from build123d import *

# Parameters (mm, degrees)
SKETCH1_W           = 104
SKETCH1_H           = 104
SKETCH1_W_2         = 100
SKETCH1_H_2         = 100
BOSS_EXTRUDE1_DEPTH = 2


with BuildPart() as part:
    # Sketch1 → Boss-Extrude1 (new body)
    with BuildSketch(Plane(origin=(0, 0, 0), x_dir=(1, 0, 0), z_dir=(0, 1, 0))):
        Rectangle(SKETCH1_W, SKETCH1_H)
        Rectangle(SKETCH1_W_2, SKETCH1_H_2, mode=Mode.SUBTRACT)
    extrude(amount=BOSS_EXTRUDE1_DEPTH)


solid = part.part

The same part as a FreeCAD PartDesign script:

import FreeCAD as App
import Part
import Sketcher
from FreeCAD import Vector
Q = App.Units.Quantity

doc = App.newDocument("Part")
body = doc.addObject("PartDesign::Body", "Body")

sketch1 = body.newObject("Sketcher::SketchObject", "Sketch")
sketch1.AttachmentSupport = (doc.getObject("XZ_Plane"), [""])
sketch1.MapMode = "FlatFace"
sketch1.addGeometry(Part.LineSegment(Vector(-52, -52, 0), Vector(-52, 52, 0)), False)
sketch1.addGeometry(Part.LineSegment(Vector(-52, 52, 0), Vector(52, 52, 0)), False)
sketch1.addGeometry(Part.LineSegment(Vector(52, 52, 0), Vector(52, -52, 0)), False)
sketch1.addGeometry(Part.LineSegment(Vector(52, -52, 0), Vector(-52, -52, 0)), False)
sketch1.addGeometry(Part.LineSegment(Vector(50, 50, 0), Vector(-50, 50, 0)), False)
sketch1.addGeometry(Part.LineSegment(Vector(-50, 50, 0), Vector(-50, -50, 0)), False)
sketch1.addGeometry(Part.LineSegment(Vector(-50, -50, 0), Vector(50, -50, 0)), False)
sketch1.addGeometry(Part.LineSegment(Vector(50, -50, 0), Vector(50, 50, 0)), False)
sketch1.addConstraint(Sketcher.Constraint("Coincident", 0, 2, 1, 1))
sketch1.addConstraint(Sketcher.Constraint("Coincident", 1, 2, 2, 1))
sketch1.addConstraint(Sketcher.Constraint("Coincident", 2, 2, 3, 1))
sketch1.addConstraint(Sketcher.Constraint("Coincident", 3, 2, 0, 1))
sketch1.addConstraint(Sketcher.Constraint("Coincident", 4, 2, 5, 1))
sketch1.addConstraint(Sketcher.Constraint("Coincident", 5, 2, 6, 1))
sketch1.addConstraint(Sketcher.Constraint("Coincident", 6, 2, 7, 1))
sketch1.addConstraint(Sketcher.Constraint("Coincident", 7, 2, 4, 1))
sketch1.addConstraint(Sketcher.Constraint("Vertical", 0))
sketch1.addConstraint(Sketcher.Constraint("Horizontal", 1))
sketch1.addConstraint(Sketcher.Constraint("Vertical", 2))
sketch1.addConstraint(Sketcher.Constraint("Horizontal", 3))
sketch1.addConstraint(Sketcher.Constraint("Horizontal", 4))
sketch1.addConstraint(Sketcher.Constraint("Vertical", 5))
sketch1.addConstraint(Sketcher.Constraint("Horizontal", 6))
sketch1.addConstraint(Sketcher.Constraint("Vertical", 7))
sketch1.addConstraint(Sketcher.Constraint("Symmetric", 0, 2, 2, 2, -1, 1))
sketch1.addConstraint(Sketcher.Constraint("Symmetric", 4, 2, 6, 2, -1, 1))
sketch1.addConstraint(Sketcher.Constraint("Equal", 3, 0))
sketch1.addConstraint(Sketcher.Constraint("Equal", 6, 5))
sketch1.addConstraint(Sketcher.Constraint("DistanceX", 1, 1, 1, 2, Q("104 mm")))
sketch1.addConstraint(Sketcher.Constraint("DistanceX", 4, 2, 4, 1, Q("100 mm")))
pad1 = body.newObject("PartDesign::Pad", "Pad")
pad1.Profile = sketch1
pad1.Length = 2
pad1.Reversed = True

doc.recompute()
